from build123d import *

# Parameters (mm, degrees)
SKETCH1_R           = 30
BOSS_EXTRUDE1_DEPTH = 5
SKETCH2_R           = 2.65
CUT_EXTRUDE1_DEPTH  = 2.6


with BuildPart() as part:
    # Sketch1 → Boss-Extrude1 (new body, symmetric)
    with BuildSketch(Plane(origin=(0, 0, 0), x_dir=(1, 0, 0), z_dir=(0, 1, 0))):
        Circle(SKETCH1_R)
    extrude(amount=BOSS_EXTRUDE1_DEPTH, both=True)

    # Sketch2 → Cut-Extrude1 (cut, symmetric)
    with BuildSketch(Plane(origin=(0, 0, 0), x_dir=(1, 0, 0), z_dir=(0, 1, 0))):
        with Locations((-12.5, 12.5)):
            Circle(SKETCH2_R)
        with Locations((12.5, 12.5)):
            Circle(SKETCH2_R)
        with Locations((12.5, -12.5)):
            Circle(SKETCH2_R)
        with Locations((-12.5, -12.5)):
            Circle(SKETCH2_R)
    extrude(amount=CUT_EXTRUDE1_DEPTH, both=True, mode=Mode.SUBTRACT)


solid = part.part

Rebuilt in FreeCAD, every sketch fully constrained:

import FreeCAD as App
import Part
import Sketcher

V = App.Vector

doc = App.newDocument("Part")
params = doc.addObject("Spreadsheet::Sheet", "Params")
for row, (alias, value) in enumerate([
    ("sketch1_diameter", "60 mm"),
    ("pad1_length", "10 mm"),
    ("sketch2_diameter", "5.3 mm"),
    ("pocket1_length", "5.2 mm"),
], start=1):
    params.set(f"A{row}", alias)
    params.set(f"B{row}", "=" + value)
    params.setAlias(f"B{row}", alias)

body = doc.addObject("PartDesign::Body", "Body")

# Sketch on XZ plane
sketch1 = body.newObject("Sketcher::SketchObject", "Sketch")
sketch1.AttachmentSupport = (doc.getObject("XZ_Plane"), [""])
sketch1.MapMode = "FlatFace"
sketch1.addGeometry(Part.Circle(V(0, 0, 0), V(0, 0, 1), 30), False)
sketch1.addConstraint(Sketcher.Constraint("Coincident", 0, 3, -1, 1))
sketch1.addConstraint(Sketcher.Constraint("Diameter", 0, 60.0))
sketch1.setExpression("Constraints[1]", "Params.sketch1_diameter")
pad1 = body.newObject("PartDesign::Pad", "Pad")
pad1.Profile = sketch1
pad1.setExpression("Length", "Params.pad1_length")
pad1.Midplane = True

# Sketch on XZ plane
sketch2 = body.newObject("Sketcher::SketchObject", "Sketch001")
sketch2.AttachmentSupport = (doc.getObject("XZ_Plane"), [""])
sketch2.MapMode = "FlatFace"
sketch2.addGeometry(Part.Circle(V(-12.5, -12.5, 0), V(0, 0, 1), 2.6), False)
sketch2.addGeometry(Part.Circle(V(12.5, -12.5, 0), V(0, 0, 1), 2.6), False)
sketch2.addGeometry(Part.Circle(V(12.5, 12.5, 0), V(0, 0, 1), 2.6), False)
sketch2.addGeometry(Part.Circle(V(-12.5, 12.5, 0), V(0, 0, 1), 2.6), False)
sketch2.addConstraint(Sketcher.Constraint("Equal", 0, 1))
sketch2.addConstraint(Sketcher.Constraint("Equal", 1, 2))
sketch2.addConstraint(Sketcher.Constraint("Equal", 2, 3))
sketch2.addConstraint(Sketcher.Constraint("Symmetric", 0, 3, 2, 3, -1, 1))
sketch2.addConstraint(Sketcher.Constraint("Symmetric", 1, 3, 3, 3, -1, 1))
sketch2.addConstraint(Sketcher.Constraint("Symmetric", 0, 3, 1, 3, -2))
sketch2.addConstraint(Sketcher.Constraint("Diameter", 0, 5.3))
sketch2.addConstraint(Sketcher.Constraint("DistanceX", 0, 3, 1, 3, 25.0))
sketch2.addConstraint(Sketcher.Constraint("DistanceY", 1, 3, 2, 3, 25.0))
sketch2.setExpression("Constraints[6]", "Params.sketch2_diameter")
pocket1 = body.newObject("PartDesign::Pocket", "Pocket")
pocket1.Profile = sketch2
pocket1.setExpression("Length", "Params.pocket1_length")
pocket1.Midplane = True

doc.recompute()
